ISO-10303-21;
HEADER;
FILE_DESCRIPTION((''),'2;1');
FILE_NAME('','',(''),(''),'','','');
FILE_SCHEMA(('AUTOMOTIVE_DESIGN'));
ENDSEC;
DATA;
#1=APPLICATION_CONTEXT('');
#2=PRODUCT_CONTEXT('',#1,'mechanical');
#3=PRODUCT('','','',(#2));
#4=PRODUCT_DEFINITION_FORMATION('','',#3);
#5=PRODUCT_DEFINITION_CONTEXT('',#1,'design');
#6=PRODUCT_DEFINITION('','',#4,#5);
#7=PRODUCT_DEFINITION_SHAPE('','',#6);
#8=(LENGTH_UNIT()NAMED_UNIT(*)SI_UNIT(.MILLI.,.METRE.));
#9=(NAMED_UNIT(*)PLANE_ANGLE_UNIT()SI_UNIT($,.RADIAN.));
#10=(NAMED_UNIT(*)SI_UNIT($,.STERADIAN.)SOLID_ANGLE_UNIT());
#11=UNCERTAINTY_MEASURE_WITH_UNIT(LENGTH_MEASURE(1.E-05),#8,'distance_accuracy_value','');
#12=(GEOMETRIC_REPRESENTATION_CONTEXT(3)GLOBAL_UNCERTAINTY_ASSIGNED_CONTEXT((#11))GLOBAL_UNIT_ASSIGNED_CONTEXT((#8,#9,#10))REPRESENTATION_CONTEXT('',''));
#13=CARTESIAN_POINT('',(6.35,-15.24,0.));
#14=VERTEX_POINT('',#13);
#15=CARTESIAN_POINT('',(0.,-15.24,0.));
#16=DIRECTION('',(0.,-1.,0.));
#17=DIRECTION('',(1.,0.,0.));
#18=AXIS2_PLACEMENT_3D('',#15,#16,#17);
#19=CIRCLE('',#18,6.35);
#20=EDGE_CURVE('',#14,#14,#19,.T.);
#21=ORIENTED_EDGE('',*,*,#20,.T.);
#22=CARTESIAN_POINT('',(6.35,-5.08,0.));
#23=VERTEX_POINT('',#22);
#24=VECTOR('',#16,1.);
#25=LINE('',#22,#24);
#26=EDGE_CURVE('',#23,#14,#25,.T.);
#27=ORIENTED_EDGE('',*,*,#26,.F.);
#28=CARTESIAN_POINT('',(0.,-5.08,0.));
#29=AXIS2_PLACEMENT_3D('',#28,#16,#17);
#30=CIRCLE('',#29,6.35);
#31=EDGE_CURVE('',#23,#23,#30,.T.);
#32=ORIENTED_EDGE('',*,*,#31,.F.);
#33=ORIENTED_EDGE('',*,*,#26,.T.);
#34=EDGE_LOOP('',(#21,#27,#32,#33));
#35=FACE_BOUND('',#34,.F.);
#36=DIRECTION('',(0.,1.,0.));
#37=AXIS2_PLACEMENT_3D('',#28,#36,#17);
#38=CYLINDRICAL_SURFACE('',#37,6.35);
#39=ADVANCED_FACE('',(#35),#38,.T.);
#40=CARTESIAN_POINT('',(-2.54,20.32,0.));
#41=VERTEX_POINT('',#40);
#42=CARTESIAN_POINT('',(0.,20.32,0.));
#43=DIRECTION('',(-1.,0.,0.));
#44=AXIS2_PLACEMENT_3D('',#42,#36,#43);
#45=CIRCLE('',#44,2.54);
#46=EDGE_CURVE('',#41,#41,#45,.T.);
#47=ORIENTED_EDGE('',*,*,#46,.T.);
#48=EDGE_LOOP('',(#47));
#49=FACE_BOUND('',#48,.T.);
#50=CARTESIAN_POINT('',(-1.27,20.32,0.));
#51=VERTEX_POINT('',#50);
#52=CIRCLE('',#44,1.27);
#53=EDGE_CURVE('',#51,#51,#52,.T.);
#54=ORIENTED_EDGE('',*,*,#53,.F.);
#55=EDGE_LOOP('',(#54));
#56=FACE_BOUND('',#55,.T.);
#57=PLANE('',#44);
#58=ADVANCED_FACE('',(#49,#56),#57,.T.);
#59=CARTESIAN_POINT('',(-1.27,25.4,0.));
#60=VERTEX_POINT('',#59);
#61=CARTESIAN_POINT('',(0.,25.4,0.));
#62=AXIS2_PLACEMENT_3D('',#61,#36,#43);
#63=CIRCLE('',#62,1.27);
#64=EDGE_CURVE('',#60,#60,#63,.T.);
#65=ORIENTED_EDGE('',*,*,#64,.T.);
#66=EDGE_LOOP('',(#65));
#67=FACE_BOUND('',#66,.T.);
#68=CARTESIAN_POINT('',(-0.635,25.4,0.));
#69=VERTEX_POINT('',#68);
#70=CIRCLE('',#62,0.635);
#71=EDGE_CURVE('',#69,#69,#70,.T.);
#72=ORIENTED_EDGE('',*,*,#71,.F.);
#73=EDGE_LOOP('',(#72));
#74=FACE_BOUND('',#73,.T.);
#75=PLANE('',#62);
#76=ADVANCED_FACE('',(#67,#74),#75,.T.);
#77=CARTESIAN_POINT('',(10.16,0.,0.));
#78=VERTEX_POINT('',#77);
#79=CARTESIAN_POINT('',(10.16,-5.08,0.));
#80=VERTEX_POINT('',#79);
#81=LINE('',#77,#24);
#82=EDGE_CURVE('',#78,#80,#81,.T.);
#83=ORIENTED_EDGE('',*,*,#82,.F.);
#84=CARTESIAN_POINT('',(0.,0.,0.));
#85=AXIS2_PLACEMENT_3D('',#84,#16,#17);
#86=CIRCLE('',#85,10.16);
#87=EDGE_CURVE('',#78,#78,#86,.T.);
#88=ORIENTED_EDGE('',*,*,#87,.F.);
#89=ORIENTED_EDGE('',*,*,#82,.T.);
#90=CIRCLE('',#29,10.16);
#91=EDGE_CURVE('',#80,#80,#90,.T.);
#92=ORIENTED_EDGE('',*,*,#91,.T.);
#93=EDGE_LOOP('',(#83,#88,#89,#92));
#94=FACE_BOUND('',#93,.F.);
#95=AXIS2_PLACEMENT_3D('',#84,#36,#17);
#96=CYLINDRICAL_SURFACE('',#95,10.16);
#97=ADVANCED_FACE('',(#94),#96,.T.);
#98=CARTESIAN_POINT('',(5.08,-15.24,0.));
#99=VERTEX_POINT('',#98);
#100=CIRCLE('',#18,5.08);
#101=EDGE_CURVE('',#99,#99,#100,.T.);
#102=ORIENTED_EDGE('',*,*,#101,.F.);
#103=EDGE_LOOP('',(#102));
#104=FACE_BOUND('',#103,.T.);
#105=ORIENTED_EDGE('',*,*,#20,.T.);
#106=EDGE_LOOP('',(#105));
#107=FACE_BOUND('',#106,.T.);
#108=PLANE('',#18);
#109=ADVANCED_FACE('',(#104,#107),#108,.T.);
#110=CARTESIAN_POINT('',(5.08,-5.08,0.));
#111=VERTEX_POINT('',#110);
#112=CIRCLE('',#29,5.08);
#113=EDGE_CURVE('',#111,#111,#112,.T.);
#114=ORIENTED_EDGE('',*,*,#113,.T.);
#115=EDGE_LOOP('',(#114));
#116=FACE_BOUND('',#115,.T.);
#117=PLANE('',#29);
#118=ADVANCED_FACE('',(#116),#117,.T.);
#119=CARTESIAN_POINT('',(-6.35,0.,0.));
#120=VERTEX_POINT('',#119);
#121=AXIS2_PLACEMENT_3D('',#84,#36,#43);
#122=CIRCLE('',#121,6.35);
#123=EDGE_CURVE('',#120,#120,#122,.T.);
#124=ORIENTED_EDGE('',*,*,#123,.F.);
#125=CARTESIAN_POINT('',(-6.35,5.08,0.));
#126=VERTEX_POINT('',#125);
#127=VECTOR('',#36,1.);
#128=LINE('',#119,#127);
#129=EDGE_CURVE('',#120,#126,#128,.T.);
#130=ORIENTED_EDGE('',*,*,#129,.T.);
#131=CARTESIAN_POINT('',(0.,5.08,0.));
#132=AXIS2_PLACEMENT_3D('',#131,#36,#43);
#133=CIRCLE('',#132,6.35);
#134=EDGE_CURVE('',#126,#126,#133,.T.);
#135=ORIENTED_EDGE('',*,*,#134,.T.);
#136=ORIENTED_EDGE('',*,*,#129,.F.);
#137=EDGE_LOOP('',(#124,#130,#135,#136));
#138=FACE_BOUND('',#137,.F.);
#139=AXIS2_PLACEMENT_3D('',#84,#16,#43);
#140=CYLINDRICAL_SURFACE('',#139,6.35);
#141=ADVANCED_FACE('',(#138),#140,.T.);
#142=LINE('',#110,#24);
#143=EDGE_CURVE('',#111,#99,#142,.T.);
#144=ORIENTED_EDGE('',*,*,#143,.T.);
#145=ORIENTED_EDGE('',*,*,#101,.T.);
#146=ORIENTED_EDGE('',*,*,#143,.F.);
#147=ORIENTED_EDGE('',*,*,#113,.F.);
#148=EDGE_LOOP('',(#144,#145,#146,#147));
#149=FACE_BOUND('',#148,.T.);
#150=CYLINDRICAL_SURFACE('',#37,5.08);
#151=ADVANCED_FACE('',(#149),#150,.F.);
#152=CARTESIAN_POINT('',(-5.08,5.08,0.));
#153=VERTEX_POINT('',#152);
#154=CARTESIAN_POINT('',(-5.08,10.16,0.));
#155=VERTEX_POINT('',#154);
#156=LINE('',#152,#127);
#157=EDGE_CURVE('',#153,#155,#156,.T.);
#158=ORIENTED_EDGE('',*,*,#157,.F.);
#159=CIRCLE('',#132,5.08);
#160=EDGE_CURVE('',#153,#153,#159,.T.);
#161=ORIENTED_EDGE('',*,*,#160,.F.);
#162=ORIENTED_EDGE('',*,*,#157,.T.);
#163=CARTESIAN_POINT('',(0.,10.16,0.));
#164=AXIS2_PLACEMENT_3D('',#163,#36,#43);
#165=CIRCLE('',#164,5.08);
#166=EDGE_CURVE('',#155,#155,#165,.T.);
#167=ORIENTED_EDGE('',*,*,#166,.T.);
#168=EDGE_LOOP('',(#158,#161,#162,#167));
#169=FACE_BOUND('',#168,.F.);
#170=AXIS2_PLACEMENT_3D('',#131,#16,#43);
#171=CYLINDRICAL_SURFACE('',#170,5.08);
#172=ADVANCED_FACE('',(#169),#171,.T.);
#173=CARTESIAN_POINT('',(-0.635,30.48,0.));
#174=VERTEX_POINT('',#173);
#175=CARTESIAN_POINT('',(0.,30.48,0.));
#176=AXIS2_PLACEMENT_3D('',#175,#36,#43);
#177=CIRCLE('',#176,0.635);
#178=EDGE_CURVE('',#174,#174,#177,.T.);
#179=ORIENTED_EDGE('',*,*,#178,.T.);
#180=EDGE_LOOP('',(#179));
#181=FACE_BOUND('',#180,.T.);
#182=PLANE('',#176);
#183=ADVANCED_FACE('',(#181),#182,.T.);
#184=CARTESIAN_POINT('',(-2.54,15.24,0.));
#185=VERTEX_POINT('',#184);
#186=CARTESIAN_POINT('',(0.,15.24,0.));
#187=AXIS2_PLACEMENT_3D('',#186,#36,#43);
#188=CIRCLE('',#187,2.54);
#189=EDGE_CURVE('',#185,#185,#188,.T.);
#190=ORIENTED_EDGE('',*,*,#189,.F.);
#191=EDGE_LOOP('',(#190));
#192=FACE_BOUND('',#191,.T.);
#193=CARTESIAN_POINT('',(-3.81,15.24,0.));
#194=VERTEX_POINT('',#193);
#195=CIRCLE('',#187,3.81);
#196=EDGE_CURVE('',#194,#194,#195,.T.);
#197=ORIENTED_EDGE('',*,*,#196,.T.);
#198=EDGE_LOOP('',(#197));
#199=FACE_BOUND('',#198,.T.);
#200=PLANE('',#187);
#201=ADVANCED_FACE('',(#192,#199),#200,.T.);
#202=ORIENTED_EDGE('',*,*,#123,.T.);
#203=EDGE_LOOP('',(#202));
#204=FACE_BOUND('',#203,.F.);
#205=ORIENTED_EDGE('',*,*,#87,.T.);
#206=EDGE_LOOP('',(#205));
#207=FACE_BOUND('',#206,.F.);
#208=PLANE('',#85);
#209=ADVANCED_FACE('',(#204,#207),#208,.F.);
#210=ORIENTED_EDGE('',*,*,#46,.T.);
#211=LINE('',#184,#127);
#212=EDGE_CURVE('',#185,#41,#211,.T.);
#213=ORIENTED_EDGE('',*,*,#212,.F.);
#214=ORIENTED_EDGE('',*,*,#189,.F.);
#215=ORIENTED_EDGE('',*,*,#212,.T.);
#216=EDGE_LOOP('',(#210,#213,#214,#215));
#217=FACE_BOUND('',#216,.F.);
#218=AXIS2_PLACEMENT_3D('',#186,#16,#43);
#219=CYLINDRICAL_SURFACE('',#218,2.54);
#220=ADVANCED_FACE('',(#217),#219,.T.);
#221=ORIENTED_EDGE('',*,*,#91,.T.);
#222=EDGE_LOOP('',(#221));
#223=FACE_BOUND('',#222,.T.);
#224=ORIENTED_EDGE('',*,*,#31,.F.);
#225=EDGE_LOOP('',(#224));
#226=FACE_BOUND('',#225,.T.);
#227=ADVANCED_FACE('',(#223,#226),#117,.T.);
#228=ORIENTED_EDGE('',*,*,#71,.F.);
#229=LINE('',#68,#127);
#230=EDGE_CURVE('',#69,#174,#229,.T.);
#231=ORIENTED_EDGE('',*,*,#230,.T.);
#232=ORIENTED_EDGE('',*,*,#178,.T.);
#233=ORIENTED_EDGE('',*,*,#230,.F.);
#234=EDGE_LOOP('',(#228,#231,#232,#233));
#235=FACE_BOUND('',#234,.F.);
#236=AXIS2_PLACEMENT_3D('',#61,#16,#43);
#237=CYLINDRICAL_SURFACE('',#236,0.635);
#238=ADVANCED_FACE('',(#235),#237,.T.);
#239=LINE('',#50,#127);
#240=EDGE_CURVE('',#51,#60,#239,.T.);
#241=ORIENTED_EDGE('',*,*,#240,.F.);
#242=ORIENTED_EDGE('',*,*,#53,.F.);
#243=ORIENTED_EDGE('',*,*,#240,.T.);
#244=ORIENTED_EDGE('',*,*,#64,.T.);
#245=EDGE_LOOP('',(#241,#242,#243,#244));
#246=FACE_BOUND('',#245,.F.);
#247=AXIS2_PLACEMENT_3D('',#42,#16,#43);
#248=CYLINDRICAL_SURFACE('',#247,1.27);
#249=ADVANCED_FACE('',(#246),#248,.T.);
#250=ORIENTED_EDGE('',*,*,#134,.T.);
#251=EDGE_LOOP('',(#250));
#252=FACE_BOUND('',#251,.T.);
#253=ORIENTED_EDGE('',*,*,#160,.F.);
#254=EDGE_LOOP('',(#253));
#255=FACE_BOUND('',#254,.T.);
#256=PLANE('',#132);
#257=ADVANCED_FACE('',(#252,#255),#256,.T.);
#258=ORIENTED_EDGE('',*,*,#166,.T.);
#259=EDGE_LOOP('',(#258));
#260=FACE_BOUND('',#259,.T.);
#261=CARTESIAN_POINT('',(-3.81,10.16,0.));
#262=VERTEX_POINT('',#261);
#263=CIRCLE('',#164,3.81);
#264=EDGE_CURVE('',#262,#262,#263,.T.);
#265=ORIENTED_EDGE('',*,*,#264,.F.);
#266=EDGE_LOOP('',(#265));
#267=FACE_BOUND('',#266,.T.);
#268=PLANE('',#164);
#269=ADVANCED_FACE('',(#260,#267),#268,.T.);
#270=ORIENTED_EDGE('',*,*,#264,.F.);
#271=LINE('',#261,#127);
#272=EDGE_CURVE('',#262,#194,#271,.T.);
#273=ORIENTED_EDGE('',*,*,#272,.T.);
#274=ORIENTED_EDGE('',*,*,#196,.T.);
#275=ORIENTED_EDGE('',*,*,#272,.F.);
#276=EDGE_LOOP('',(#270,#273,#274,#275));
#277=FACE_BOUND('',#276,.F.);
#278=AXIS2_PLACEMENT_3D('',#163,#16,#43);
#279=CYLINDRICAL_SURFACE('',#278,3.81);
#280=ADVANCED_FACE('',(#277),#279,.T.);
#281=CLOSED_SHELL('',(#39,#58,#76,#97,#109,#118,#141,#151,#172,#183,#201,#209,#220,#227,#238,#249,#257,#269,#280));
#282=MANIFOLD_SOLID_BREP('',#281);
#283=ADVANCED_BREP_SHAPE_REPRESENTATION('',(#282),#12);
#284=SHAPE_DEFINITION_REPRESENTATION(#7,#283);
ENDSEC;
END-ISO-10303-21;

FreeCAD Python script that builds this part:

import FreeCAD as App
import Part
import Sketcher

V = App.Vector
Q = App.Units.Quantity

doc = App.newDocument("Part")
body = doc.addObject("PartDesign::Body", "Body")

sketch1 = doc.addObject("Sketcher::SketchObject", "Sketch")
body.addObject(sketch1)
sketch1.AttachmentSupport = (doc.XZ_Plane, [""])
sketch1.MapMode = "FlatFace"
sketch1.addGeometry(Part.Circle(V(0, 0, 0), V(0, 0, 1), 10.16), False)
sketch1.addConstraint(Sketcher.Constraint("Coincident", 0, 3, -1, 1))
sketch1.addConstraint(Sketcher.Constraint("Diameter", 0, Q("0.8 in")))
pad1 = doc.addObject("PartDesign::Pad", "Pad")
body.addObject(pad1)
pad1.Profile = sketch1
pad1.Length = Q("0.2 in")

sketch2 = doc.addObject("Sketcher::SketchObject", "Sketch001")
body.addObject(sketch2)
sketch2.AttachmentSupport = (doc.XZ_Plane, [""])
sketch2.MapMode = "FlatFace"
sketch2.AttachmentOffset = App.Placement(V(0, 0, 0.2 * 25.4), App.Rotation())
sketch2.addGeometry(Part.Circle(V(0, 0, 0), V(0, 0, 1), 6.35), False)
sketch2.addGeometry(Part.Circle(V(0, 0, 0), V(0, 0, 1), 5.08), False)
sketch2.addConstraint(Sketcher.Constraint("Coincident", 0, 3, -1, 1))
sketch2.addConstraint(Sketcher.Constraint("Coincident", 1, 3, -1, 1))
sketch2.addConstraint(Sketcher.Constraint("Diameter", 0, Q("0.5 in")))
sketch2.addConstraint(Sketcher.Constraint("Diameter", 1, Q("0.4 in")))
pad2 = doc.addObject("PartDesign::Pad", "Pad001")
body.addObject(pad2)
pad2.Profile = sketch2
pad2.Length = Q("0.4 in")

sketch3 = doc.addObject("Sketcher::SketchObject", "Sketch002")
body.addObject(sketch3)
sketch3.AttachmentSupport = (doc.XZ_Plane, [""])
sketch3.MapMode = "FlatFace"
sketch3.addGeometry(Part.Circle(V(0, 0, 0), V(0, 0, 1), 6.35), False)
sketch3.addConstraint(Sketcher.Constraint("Coincident", 0, 3, -1, 1))
sketch3.addConstraint(Sketcher.Constraint("Diameter", 0, Q("0.5 in")))
pad3 = doc.addObject("PartDesign::Pad", "Pad002")
body.addObject(pad3)
pad3.Profile = sketch3
pad3.Length = Q("0.2 in")
pad3.Reversed = True

sketch4 = doc.addObject("Sketcher::SketchObject", "Sketch003")
body.addObject(sketch4)
sketch4.AttachmentSupport = (doc.XZ_Plane, [""])
sketch4.MapMode = "FlatFace"
sketch4.AttachmentOffset = App.Placement(V(0, 0, -0.2 * 25.4), App.Rotation())
sketch4.addGeometry(Part.Circle(V(0, 0, 0), V(0, 0, 1), 5.08), False)
sketch4.addConstraint(Sketcher.Constraint("Coincident", 0, 3, -1, 1))
sketch4.addConstraint(Sketcher.Constraint("Diameter", 0, Q("0.4 in")))
pad4 = doc.addObject("PartDesign::Pad", "Pad003")
body.addObject(pad4)
pad4.Profile = sketch4
pad4.Length = Q("0.2 in")
pad4.Reversed = True

sketch5 = doc.addObject("Sketcher::SketchObject", "Sketch004")
body.addObject(sketch5)
sketch5.AttachmentSupport = (doc.XZ_Plane, [""])
sketch5.MapMode = "FlatFace"
sketch5.AttachmentOffset = App.Placement(V(0, 0, -0.4 * 25.4), App.Rotation())
sketch5.addGeometry(Part.Circle(V(0, 0, 0), V(0, 0, 1), 3.81), False)
sketch5.addConstraint(Sketcher.Constraint("Coincident", 0, 3, -1, 1))
sketch5.addConstraint(Sketcher.Constraint("Diameter", 0, Q("0.3 in")))
pad5 = doc.addObject("PartDesign::Pad", "Pad004")
body.addObject(pad5)
pad5.Profile = sketch5
pad5.Length = Q("0.2 in")
pad5.Reversed = True

sketch6 = doc.addObject("Sketcher::SketchObject", "Sketch005")
body.addObject(sketch6)
sketch6.AttachmentSupport = (doc.XZ_Plane, [""])
sketch6.MapMode = "FlatFace"
sketch6.AttachmentOffset = App.Placement(V(0, 0, -0.6 * 25.4), App.Rotation())
sketch6.addGeometry(Part.Circle(V(0, 0, 0), V(0, 0, 1), 2.54), False)
sketch6.addConstraint(Sketcher.Constraint("Coincident", 0, 3, -1, 1))
sketch6.addConstraint(Sketcher.Constraint("Diameter", 0, Q("0.2 in")))
pad6 = doc.addObject("PartDesign::Pad", "Pad005")
body.addObject(pad6)
pad6.Profile = sketch6
pad6.Length = Q("0.2 in")
pad6.Reversed = True

sketch7 = doc.addObject("Sketcher::SketchObject", "Sketch006")
body.addObject(sketch7)
sketch7.AttachmentSupport = (doc.XZ_Plane, [""])
sketch7.MapMode = "FlatFace"
sketch7.AttachmentOffset = App.Placement(V(0, 0, -0.8 * 25.4), App.Rotation())
sketch7.addGeometry(Part.Circle(V(0, 0, 0), V(0, 0, 1), 1.27), False)
sketch7.addConstraint(Sketcher.Constraint("Coincident", 0, 3, -1, 1))
sketch7.addConstraint(Sketcher.Constraint("Diameter", 0, Q("0.1 in")))
pad7 = doc.addObject("PartDesign::Pad", "Pad006")
body.addObject(pad7)
pad7.Profile = sketch7
pad7.Length = Q("0.2 in")
pad7.Reversed = True

sketch8 = doc.addObject("Sketcher::SketchObject", "Sketch007")
body.addObject(sketch8)
sketch8.AttachmentSupport = (doc.XZ_Plane, [""])
sketch8.MapMode = "FlatFace"
sketch8.AttachmentOffset = App.Placement(V(0, 0, -1 * 25.4), App.Rotation())
sketch8.addGeometry(Part.Circle(V(0, 0, 0), V(0, 0, 1), 0.635), False)
sketch8.addConstraint(Sketcher.Constraint("Coincident", 0, 3, -1, 1))
sketch8.addConstraint(Sketcher.Constraint("Diameter", 0, Q("0.05 in")))
pad8 = doc.addObject("PartDesign::Pad", "Pad007")
body.addObject(pad8)
pad8.Profile = sketch8
pad8.Length = Q("0.2 in")
pad8.Reversed = True

doc.recompute()
